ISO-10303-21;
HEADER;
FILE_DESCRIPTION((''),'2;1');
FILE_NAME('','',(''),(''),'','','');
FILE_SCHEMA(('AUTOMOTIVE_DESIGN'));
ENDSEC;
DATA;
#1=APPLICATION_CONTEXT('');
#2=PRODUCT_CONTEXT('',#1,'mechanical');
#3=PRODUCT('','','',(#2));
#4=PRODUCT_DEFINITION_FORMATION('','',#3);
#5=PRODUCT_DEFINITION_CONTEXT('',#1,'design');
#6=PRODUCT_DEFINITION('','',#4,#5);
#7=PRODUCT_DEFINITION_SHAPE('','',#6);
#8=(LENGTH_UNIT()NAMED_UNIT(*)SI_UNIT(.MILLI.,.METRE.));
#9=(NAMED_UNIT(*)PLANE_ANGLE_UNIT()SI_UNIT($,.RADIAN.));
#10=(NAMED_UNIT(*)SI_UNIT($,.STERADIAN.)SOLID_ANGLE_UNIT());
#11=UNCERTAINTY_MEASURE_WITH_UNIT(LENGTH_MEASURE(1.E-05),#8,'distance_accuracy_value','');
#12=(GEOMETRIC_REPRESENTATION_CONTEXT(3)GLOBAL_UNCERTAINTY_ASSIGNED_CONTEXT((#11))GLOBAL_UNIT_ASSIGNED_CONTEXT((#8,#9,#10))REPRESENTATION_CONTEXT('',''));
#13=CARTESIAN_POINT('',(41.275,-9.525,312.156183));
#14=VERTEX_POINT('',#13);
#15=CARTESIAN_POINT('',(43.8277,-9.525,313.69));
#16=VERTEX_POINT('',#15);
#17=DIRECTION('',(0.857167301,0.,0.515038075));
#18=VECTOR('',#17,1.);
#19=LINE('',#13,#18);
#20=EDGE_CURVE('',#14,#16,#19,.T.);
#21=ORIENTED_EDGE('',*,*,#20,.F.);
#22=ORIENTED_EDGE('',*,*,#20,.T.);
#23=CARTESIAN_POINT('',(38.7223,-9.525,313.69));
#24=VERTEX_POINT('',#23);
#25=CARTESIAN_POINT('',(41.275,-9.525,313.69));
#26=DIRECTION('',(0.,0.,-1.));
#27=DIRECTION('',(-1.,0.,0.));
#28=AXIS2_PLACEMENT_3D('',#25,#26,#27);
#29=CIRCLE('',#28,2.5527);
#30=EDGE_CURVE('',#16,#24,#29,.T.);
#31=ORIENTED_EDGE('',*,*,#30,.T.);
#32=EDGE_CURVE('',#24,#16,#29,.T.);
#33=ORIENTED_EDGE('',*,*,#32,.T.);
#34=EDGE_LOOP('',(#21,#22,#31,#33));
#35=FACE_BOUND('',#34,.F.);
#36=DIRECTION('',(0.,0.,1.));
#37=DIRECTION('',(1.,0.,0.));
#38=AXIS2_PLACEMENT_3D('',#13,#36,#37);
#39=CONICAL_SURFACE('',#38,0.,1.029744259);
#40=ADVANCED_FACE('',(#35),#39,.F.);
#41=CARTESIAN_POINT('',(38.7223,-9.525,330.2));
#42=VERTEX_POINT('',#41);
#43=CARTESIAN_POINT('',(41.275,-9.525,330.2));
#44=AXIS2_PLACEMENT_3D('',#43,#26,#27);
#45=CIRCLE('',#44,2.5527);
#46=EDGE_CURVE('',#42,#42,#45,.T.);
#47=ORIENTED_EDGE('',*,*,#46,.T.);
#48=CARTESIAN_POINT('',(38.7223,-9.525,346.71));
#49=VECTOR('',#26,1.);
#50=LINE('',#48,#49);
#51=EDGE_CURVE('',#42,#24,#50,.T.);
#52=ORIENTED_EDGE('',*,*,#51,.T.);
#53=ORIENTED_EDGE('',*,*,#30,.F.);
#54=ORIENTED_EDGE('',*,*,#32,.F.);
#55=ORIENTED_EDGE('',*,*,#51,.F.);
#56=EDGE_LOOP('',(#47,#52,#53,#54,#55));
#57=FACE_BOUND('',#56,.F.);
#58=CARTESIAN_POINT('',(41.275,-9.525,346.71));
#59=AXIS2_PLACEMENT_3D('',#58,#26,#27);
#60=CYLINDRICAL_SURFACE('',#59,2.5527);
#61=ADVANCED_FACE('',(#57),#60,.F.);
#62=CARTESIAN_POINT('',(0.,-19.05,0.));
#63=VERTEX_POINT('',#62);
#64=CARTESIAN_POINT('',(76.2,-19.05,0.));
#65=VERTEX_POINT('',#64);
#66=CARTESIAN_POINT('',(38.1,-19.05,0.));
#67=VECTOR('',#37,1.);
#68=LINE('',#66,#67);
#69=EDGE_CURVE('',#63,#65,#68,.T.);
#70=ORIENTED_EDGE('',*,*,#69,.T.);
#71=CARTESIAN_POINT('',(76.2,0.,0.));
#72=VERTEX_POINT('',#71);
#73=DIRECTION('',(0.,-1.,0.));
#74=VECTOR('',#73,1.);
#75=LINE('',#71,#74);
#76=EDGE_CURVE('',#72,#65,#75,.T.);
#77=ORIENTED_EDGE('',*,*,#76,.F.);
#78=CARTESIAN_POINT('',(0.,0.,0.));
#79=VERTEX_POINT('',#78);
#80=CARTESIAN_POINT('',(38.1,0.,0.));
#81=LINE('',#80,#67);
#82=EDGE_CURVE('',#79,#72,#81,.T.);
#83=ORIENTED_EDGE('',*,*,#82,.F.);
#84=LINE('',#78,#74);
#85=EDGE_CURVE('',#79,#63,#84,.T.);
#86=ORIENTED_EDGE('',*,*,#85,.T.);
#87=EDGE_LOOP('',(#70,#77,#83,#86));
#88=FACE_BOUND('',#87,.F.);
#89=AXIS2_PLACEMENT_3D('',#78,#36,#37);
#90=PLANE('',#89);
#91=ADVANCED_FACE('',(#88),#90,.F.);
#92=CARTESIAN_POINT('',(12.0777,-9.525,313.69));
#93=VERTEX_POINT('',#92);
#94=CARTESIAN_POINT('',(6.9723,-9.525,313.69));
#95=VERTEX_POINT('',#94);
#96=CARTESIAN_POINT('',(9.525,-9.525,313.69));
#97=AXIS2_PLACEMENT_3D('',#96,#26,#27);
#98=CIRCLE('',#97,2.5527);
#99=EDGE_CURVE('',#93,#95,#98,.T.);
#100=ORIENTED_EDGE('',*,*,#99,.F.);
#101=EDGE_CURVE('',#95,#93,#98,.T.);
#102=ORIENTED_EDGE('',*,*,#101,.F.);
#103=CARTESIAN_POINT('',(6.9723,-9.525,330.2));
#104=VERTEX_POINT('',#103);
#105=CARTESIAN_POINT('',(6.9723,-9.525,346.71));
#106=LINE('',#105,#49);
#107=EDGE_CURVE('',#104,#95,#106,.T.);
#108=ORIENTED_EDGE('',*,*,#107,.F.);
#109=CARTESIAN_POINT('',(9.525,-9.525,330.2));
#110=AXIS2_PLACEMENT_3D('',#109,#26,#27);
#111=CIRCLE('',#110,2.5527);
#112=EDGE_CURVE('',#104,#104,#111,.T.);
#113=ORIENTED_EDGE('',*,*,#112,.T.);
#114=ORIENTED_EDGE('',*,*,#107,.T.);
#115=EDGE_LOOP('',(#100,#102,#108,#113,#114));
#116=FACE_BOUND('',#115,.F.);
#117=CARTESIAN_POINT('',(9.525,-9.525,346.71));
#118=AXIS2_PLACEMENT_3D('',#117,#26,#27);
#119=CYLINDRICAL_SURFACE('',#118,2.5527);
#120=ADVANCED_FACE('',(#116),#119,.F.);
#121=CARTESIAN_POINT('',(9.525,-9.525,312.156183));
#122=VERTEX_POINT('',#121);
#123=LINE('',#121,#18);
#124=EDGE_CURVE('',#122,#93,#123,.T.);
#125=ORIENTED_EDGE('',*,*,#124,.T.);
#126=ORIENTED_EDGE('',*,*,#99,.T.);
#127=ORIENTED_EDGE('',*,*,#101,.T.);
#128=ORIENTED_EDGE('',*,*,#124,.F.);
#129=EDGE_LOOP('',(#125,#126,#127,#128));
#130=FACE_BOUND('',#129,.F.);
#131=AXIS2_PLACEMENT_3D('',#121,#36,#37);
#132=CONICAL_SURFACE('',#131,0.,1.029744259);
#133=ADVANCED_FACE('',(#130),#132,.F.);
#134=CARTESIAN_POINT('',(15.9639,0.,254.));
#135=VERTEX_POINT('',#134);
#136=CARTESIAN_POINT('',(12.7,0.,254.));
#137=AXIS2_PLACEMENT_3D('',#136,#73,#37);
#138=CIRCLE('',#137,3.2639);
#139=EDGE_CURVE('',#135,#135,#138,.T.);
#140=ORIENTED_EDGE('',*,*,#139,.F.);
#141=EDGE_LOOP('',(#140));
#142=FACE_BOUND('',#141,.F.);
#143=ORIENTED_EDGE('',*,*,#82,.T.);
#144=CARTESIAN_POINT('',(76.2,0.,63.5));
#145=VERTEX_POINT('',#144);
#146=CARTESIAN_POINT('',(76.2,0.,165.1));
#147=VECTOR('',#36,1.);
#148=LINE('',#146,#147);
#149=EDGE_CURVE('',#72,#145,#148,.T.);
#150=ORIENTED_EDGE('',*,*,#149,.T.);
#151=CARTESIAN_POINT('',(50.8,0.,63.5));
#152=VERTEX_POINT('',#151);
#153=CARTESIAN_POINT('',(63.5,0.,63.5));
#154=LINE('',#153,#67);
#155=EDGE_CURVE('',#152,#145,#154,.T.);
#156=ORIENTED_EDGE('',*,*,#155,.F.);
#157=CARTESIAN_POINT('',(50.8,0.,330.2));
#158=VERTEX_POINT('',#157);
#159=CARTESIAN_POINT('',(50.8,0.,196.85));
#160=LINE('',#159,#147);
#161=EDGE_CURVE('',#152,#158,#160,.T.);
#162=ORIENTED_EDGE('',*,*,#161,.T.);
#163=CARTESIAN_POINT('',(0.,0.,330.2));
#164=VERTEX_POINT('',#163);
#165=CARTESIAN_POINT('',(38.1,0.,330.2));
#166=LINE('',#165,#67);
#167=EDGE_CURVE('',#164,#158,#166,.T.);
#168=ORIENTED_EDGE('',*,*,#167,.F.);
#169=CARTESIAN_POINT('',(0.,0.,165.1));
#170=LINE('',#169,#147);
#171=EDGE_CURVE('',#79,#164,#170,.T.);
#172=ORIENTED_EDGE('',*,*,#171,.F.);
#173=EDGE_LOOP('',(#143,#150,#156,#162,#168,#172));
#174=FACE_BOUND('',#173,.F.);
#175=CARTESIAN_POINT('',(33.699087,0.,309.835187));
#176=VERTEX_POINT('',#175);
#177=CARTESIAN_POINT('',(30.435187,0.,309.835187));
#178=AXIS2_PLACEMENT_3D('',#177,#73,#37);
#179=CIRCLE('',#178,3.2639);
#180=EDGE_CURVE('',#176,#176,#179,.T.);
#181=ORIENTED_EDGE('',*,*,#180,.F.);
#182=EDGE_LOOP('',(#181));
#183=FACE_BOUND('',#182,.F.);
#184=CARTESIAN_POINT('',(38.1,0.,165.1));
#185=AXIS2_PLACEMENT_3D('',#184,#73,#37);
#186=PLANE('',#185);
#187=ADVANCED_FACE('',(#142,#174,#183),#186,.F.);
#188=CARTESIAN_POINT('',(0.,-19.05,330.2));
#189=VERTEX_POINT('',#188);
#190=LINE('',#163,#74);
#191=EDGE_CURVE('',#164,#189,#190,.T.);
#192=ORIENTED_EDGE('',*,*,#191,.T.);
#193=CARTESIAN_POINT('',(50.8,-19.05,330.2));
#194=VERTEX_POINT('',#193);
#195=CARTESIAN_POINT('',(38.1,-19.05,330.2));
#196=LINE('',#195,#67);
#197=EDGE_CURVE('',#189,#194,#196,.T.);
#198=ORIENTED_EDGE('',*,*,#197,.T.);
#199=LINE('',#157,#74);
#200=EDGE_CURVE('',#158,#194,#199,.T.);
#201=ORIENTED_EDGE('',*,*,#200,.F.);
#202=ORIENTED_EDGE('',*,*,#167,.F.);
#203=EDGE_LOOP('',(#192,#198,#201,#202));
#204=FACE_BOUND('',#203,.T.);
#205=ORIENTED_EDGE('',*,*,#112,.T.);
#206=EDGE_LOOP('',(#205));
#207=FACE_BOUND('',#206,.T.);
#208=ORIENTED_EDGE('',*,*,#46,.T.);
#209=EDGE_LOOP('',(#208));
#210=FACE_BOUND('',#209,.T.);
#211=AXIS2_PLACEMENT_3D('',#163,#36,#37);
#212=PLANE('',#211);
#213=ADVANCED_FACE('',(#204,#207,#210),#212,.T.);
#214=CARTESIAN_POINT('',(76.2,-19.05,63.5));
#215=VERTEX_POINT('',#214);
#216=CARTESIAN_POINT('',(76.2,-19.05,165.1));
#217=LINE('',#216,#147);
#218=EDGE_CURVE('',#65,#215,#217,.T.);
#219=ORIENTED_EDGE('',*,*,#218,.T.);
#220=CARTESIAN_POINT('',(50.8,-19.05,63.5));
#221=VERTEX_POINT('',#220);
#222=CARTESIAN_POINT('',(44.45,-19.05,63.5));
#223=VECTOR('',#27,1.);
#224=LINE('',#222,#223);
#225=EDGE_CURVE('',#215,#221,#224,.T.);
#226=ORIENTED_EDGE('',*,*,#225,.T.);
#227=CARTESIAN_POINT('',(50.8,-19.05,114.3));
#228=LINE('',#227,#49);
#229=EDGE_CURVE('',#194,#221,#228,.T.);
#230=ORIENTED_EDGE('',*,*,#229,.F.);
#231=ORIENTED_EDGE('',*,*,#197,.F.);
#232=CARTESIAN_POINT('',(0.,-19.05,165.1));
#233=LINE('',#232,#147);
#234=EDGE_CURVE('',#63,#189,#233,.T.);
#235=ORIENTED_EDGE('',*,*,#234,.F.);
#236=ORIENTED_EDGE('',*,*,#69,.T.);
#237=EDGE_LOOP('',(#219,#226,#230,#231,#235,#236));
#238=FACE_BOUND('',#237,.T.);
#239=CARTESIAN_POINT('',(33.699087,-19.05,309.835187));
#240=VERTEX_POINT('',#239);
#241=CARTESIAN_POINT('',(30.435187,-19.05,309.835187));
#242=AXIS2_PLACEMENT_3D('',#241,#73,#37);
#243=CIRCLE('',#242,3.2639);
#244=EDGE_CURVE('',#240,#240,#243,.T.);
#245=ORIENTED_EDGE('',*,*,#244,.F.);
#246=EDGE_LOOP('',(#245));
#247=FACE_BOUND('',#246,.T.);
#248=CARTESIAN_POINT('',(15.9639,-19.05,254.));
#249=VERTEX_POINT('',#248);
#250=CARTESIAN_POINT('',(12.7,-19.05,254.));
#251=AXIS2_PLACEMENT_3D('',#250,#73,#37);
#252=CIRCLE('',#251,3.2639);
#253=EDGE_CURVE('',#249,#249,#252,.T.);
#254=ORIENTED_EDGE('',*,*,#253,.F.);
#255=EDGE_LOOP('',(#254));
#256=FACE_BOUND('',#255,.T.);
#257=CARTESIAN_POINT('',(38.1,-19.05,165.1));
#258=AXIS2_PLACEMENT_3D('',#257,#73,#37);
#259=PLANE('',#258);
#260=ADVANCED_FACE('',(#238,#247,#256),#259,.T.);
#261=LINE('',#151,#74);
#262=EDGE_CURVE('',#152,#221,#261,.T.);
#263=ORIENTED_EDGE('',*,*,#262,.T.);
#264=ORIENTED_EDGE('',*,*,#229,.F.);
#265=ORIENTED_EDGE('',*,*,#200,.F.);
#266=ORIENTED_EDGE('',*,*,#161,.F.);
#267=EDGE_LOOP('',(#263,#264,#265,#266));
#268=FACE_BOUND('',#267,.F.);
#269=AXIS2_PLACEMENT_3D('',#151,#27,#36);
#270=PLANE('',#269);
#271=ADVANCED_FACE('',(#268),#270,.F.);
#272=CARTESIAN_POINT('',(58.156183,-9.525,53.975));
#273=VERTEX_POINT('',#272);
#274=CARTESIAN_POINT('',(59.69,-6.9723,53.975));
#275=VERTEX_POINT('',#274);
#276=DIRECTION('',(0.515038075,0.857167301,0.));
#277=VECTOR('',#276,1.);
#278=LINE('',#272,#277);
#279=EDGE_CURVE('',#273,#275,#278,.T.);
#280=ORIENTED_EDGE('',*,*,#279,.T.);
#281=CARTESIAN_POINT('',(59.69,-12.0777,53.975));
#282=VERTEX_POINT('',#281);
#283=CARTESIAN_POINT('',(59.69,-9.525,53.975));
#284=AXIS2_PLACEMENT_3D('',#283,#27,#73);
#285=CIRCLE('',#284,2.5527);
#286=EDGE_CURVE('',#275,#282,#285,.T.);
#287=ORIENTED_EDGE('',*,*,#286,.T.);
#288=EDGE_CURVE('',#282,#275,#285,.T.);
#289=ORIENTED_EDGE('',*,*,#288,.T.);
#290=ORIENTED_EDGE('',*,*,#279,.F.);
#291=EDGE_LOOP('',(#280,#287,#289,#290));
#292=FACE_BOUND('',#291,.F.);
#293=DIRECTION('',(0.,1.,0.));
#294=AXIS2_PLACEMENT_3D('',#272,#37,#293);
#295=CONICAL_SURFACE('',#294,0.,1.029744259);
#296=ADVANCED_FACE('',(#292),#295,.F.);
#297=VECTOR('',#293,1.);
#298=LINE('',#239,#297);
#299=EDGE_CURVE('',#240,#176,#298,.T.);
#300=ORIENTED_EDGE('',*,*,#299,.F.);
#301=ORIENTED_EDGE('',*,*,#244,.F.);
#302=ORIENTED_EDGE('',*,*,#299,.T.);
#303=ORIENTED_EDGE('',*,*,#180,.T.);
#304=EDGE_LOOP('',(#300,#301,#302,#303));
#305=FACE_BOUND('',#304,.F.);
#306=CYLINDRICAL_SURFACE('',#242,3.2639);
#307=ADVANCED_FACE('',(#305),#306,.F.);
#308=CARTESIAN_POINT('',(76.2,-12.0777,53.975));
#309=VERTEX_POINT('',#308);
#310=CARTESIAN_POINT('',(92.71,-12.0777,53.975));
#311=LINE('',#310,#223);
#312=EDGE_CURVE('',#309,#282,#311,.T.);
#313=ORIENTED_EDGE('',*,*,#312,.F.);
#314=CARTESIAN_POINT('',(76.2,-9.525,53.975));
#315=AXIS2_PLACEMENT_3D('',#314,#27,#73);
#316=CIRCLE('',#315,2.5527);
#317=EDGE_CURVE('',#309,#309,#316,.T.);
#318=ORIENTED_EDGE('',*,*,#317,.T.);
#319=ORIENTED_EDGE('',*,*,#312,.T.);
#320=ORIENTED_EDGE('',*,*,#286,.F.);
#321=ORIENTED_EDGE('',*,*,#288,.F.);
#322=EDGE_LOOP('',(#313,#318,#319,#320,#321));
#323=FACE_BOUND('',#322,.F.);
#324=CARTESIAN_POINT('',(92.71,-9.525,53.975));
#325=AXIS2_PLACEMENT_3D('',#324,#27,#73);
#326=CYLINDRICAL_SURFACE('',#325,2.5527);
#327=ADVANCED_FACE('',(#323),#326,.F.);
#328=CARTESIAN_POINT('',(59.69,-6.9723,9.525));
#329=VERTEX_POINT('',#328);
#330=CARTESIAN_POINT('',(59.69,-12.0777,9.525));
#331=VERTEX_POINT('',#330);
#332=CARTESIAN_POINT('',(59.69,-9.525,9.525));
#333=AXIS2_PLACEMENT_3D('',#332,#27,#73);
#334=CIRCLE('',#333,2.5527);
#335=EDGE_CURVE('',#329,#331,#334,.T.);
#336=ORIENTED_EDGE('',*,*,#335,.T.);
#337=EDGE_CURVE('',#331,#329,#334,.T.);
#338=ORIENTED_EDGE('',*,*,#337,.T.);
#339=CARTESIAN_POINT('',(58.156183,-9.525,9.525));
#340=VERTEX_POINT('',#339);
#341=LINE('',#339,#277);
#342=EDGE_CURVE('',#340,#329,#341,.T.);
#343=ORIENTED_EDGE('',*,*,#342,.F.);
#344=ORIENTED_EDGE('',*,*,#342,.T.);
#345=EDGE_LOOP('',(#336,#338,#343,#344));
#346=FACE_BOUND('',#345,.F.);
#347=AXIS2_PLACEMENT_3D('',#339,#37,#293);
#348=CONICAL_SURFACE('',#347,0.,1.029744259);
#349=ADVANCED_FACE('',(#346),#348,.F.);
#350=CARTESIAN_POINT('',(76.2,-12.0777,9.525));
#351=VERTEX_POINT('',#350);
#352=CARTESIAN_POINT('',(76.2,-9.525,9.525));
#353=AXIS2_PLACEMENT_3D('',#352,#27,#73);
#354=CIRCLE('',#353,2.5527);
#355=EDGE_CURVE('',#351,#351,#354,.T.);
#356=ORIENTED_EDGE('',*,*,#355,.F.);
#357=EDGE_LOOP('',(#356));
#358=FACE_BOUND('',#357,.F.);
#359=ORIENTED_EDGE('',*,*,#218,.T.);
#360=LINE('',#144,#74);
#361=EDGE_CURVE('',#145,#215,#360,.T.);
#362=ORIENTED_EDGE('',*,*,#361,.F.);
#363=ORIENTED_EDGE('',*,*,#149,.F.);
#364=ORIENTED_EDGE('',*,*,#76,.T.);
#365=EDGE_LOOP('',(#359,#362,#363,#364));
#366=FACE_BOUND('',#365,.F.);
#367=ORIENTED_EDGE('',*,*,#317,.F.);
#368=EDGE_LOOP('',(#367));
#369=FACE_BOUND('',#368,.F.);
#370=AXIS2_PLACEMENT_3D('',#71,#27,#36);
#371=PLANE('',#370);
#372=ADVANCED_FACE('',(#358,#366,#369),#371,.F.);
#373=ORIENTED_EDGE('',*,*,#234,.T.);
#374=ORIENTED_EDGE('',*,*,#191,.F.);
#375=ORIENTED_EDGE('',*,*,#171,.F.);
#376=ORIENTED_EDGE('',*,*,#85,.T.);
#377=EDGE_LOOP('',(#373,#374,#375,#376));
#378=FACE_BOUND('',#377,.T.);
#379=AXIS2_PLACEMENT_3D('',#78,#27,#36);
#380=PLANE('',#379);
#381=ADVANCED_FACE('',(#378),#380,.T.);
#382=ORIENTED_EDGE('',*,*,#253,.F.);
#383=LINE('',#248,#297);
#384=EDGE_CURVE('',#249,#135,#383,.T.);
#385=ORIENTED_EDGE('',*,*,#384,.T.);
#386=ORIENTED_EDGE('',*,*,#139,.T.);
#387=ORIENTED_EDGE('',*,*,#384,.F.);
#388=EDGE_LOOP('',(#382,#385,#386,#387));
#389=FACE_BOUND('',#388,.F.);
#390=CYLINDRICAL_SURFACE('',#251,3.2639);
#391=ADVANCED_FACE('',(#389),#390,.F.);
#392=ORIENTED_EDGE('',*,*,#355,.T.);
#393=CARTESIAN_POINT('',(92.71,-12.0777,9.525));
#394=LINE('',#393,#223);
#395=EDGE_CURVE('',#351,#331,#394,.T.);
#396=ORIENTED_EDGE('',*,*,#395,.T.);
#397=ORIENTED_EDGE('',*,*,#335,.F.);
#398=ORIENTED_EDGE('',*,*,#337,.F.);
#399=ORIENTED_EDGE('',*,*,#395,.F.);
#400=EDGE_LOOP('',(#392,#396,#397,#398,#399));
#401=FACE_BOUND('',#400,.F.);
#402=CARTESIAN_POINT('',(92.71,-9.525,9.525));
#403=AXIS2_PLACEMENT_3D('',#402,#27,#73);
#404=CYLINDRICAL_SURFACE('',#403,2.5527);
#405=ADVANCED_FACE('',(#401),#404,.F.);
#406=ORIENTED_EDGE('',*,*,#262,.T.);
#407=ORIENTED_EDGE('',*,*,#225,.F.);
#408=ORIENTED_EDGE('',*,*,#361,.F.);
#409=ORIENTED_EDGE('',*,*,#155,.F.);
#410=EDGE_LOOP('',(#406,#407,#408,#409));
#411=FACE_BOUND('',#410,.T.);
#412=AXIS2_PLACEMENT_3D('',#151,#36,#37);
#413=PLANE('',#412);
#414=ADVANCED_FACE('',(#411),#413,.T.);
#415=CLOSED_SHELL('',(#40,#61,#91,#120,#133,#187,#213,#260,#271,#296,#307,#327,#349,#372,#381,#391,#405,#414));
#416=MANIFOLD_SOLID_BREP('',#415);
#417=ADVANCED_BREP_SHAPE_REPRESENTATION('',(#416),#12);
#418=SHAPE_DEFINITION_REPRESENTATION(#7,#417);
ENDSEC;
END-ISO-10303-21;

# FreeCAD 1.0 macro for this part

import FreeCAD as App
import Part
import Sketcher

V = App.Vector
Q = App.Units.Quantity

doc = App.newDocument("Part")
body = doc.addObject("PartDesign::Body", "Body")

# Sketch on XZ plane
sketch1 = body.newObject("Sketcher::SketchObject", "Sketch")
sketch1.AttachmentSupport = (doc.getObject("XZ_Plane"), [""])
sketch1.MapMode = "FlatFace"
sketch1.addGeometry(Part.LineSegment(V(0, 330, 0), V(0, 0, 0)), False)
sketch1.addGeometry(Part.LineSegment(V(0, 0, 0), V(76, 0, 0)), False)
sketch1.addGeometry(Part.LineSegment(V(76, 0, 0), V(76, 330, 0)), False)
sketch1.addGeometry(Part.LineSegment(V(76, 330, 0), V(0, 330, 0)), False)
sketch1.addConstraint(Sketcher.Constraint("Coincident", 0, 2, 1, 1))
sketch1.addConstraint(Sketcher.Constraint("Coincident", 1, 2, 2, 1))
sketch1.addConstraint(Sketcher.Constraint("Coincident", 2, 2, 3, 1))
sketch1.addConstraint(Sketcher.Constraint("Coincident", 3, 2, 0, 1))
sketch1.addConstraint(Sketcher.Constraint("Vertical", 0))
sketch1.addConstraint(Sketcher.Constraint("Horizontal", 1))
sketch1.addConstraint(Sketcher.Constraint("Vertical", 2))
sketch1.addConstraint(Sketcher.Constraint("Horizontal", 3))
sketch1.addConstraint(Sketcher.Constraint("Coincident", 0, 2, -1, 1))
sketch1.addConstraint(Sketcher.Constraint("DistanceX", 1, 1, 1, 2, Q("3 in")))
sketch1.addConstraint(Sketcher.Constraint("DistanceY", 0, 2, 0, 1, Q("13 in")))
pad1 = body.newObject("PartDesign::Pad", "Pad")
pad1.Profile = sketch1
pad1.Length = Q("0.75 in")

# Sketch on XZ plane
sketch2 = body.newObject("Sketcher::SketchObject", "Sketch001")
sketch2.AttachmentSupport = (doc.getObject("XZ_Plane"), [""])
sketch2.MapMode = "FlatFace"
sketch2.addGeometry(Part.LineSegment(V(51, 330, 0), V(51, 64, 0)), False)
sketch2.addGeometry(Part.LineSegment(V(51, 64, 0), V(76, 64, 0)), False)
sketch2.addGeometry(Part.LineSegment(V(76, 64, 0), V(76, 330, 0)), False)
sketch2.addGeometry(Part.LineSegment(V(76, 330, 0), V(51, 330, 0)), False)
sketch2.addConstraint(Sketcher.Constraint("Coincident", 0, 2, 1, 1))
sketch2.addConstraint(Sketcher.Constraint("Coincident", 1, 2, 2, 1))
sketch2.addConstraint(Sketcher.Constraint("Coincident", 2, 2, 3, 1))
sketch2.addConstraint(Sketcher.Constraint("Coincident", 3, 2, 0, 1))
sketch2.addConstraint(Sketcher.Constraint("Vertical", 0))
sketch2.addConstraint(Sketcher.Constraint("Horizontal", 1))
sketch2.addConstraint(Sketcher.Constraint("Vertical", 2))
sketch2.addConstraint(Sketcher.Constraint("Horizontal", 3))
sketch2.addConstraint(Sketcher.Constraint("DistanceX", 1, 1, 1, 2, Q("1 in")))
sketch2.addConstraint(Sketcher.Constraint("DistanceY", 0, 2, 0, 1, Q("10.5 in")))
sketch2.addConstraint(Sketcher.Constraint("DistanceX", -1, 1, 0, 2, Q("2 in")))
sketch2.addConstraint(Sketcher.Constraint("DistanceY", -1, 1, 2, 2, Q("13 in")))
pocket1 = body.newObject("PartDesign::Pocket", "Pocket")
pocket1.Profile = sketch2
pocket1.Type = "ThroughAll"
pocket1.Reversed = True

# Sketch on XZ plane
sketch3 = body.newObject("Sketcher::SketchObject", "Sketch002")
sketch3.AttachmentSupport = (doc.getObject("XZ_Plane"), [""])
sketch3.MapMode = "FlatFace"
sketch3.AttachmentOffset = App.Placement(V(0, 0, 0.75 * 25.4), App.Rotation())
sketch3.addGeometry(Part.Circle(V(12.7, 254, 0), V(0, 0, 1), 3.3), False)
sketch3.addConstraint(Sketcher.Constraint("Diameter", 0, Q("0.257 in")))
sketch3.addConstraint(Sketcher.Constraint("DistanceY", -1, 1, 0, 3, Q("10 in")))
sketch3.addConstraint(Sketcher.Constraint("DistanceX", -1, 1, 0, 3, Q("0.5 in")))
pocket2 = body.newObject("PartDesign::Pocket", "Pocket001")
pocket2.Profile = sketch3
pocket2.Type = "ThroughAll"

# Sketch on XZ plane
sketch4 = body.newObject("Sketcher::SketchObject", "Sketch003")
sketch4.AttachmentSupport = (doc.getObject("XZ_Plane"), [""])
sketch4.MapMode = "FlatFace"
sketch4.AttachmentOffset = App.Placement(V(0, 0, 0.75 * 25.4), App.Rotation())
sketch4.addGeometry(Part.Circle(V(30.4, 309.8, 0), V(0, 0, 1), 3.3), False)
sketch4.addConstraint(Sketcher.Constraint("Diameter", 0, Q("0.257 in")))
sketch4.addConstraint(Sketcher.Constraint("DistanceX", -1, 1, 0, 3, 30.435187))
sketch4.addConstraint(Sketcher.Constraint("DistanceY", -1, 1, 0, 3, 309.835187))
pocket3 = body.newObject("PartDesign::Pocket", "Pocket002")
pocket3.Profile = sketch4
pocket3.Type = "ThroughAll"

# Sketch on XY plane
sketch5 = body.newObject("Sketcher::SketchObject", "Sketch004")
sketch5.AttachmentSupport = (doc.getObject("XY_Plane"), [""])
sketch5.MapMode = "FlatFace"
sketch5.AttachmentOffset = App.Placement(V(0, 0, 13 * 25.4), App.Rotation())
sketch5.addGeometry(Part.Circle(V(9.5, -9.5, 0), V(0, 0, 1), 2.6), False)
sketch5.addGeometry(Part.Circle(V(41.3, -9.5, 0), V(0, 0, 1), 2.6), False)
sketch5.addConstraint(Sketcher.Constraint("Equal", 0, 1))
sketch5.addConstraint(Sketcher.Constraint("Horizontal", 0, 3, 1, 3))
sketch5.addConstraint(Sketcher.Constraint("Diameter", 0, Q("0.201 in")))
sketch5.addConstraint(Sketcher.Constraint("DistanceX", 0, 3, 1, 3, Q("1.25 in")))
sketch5.addConstraint(Sketcher.Constraint("DistanceX", -1, 1, 0, 3, Q("0.375 in")))
sketch5.addConstraint(Sketcher.Constraint("DistanceY", 0, 3, -1, 1, Q("0.375 in")))
doc.recompute()
hole = body.newObject("PartDesign::Hole", "Hole")
hole.Profile = sketch5
hole.ThreadType = "None"
hole.Diameter = Q("0.201 in")
hole.DepthType = "Dimension"
hole.Depth = Q("0.65 in")
hole.DrillPoint = "Angled"
hole.DrillPointAngle = 118

# Sketch on YZ plane
sketch6 = body.newObject("Sketcher::SketchObject", "Sketch005")
sketch6.AttachmentSupport = (doc.getObject("YZ_Plane"), [""])
sketch6.MapMode = "FlatFace"
sketch6.AttachmentOffset = App.Placement(V(0, 0, 3 * 25.4), App.Rotation())
sketch6.addGeometry(Part.Circle(V(-9.5, 54, 0), V(0, 0, 1), 2.6), False)
sketch6.addGeometry(Part.Circle(V(-9.5, 9.5, 0), V(0, 0, 1), 2.6), False)
sketch6.addConstraint(Sketcher.Constraint("Equal", 0, 1))
sketch6.addConstraint(Sketcher.Constraint("Vertical", 0, 3, 1, 3))
sketch6.addConstraint(Sketcher.Constraint("Diameter", 0, Q("0.201 in")))
sketch6.addConstraint(Sketcher.Constraint("DistanceY", 1, 3, 0, 3, Q("1.75 in")))
sketch6.addConstraint(Sketcher.Constraint("DistanceX", 0, 3, -1, 1, Q("0.375 in")))
sketch6.addConstraint(Sketcher.Constraint("DistanceY", -1, 1, 0, 3, Q("2.125 in")))
doc.recompute()
hole2 = body.newObject("PartDesign::Hole", "Hole001")
hole2.Profile = sketch6
hole2.ThreadType = "None"
hole2.Diameter = Q("0.201 in")
hole2.DepthType = "Dimension"
hole2.Depth = Q("0.65 in")
hole2.DrillPoint = "Angled"
hole2.DrillPointAngle = 118

doc.recompute()
